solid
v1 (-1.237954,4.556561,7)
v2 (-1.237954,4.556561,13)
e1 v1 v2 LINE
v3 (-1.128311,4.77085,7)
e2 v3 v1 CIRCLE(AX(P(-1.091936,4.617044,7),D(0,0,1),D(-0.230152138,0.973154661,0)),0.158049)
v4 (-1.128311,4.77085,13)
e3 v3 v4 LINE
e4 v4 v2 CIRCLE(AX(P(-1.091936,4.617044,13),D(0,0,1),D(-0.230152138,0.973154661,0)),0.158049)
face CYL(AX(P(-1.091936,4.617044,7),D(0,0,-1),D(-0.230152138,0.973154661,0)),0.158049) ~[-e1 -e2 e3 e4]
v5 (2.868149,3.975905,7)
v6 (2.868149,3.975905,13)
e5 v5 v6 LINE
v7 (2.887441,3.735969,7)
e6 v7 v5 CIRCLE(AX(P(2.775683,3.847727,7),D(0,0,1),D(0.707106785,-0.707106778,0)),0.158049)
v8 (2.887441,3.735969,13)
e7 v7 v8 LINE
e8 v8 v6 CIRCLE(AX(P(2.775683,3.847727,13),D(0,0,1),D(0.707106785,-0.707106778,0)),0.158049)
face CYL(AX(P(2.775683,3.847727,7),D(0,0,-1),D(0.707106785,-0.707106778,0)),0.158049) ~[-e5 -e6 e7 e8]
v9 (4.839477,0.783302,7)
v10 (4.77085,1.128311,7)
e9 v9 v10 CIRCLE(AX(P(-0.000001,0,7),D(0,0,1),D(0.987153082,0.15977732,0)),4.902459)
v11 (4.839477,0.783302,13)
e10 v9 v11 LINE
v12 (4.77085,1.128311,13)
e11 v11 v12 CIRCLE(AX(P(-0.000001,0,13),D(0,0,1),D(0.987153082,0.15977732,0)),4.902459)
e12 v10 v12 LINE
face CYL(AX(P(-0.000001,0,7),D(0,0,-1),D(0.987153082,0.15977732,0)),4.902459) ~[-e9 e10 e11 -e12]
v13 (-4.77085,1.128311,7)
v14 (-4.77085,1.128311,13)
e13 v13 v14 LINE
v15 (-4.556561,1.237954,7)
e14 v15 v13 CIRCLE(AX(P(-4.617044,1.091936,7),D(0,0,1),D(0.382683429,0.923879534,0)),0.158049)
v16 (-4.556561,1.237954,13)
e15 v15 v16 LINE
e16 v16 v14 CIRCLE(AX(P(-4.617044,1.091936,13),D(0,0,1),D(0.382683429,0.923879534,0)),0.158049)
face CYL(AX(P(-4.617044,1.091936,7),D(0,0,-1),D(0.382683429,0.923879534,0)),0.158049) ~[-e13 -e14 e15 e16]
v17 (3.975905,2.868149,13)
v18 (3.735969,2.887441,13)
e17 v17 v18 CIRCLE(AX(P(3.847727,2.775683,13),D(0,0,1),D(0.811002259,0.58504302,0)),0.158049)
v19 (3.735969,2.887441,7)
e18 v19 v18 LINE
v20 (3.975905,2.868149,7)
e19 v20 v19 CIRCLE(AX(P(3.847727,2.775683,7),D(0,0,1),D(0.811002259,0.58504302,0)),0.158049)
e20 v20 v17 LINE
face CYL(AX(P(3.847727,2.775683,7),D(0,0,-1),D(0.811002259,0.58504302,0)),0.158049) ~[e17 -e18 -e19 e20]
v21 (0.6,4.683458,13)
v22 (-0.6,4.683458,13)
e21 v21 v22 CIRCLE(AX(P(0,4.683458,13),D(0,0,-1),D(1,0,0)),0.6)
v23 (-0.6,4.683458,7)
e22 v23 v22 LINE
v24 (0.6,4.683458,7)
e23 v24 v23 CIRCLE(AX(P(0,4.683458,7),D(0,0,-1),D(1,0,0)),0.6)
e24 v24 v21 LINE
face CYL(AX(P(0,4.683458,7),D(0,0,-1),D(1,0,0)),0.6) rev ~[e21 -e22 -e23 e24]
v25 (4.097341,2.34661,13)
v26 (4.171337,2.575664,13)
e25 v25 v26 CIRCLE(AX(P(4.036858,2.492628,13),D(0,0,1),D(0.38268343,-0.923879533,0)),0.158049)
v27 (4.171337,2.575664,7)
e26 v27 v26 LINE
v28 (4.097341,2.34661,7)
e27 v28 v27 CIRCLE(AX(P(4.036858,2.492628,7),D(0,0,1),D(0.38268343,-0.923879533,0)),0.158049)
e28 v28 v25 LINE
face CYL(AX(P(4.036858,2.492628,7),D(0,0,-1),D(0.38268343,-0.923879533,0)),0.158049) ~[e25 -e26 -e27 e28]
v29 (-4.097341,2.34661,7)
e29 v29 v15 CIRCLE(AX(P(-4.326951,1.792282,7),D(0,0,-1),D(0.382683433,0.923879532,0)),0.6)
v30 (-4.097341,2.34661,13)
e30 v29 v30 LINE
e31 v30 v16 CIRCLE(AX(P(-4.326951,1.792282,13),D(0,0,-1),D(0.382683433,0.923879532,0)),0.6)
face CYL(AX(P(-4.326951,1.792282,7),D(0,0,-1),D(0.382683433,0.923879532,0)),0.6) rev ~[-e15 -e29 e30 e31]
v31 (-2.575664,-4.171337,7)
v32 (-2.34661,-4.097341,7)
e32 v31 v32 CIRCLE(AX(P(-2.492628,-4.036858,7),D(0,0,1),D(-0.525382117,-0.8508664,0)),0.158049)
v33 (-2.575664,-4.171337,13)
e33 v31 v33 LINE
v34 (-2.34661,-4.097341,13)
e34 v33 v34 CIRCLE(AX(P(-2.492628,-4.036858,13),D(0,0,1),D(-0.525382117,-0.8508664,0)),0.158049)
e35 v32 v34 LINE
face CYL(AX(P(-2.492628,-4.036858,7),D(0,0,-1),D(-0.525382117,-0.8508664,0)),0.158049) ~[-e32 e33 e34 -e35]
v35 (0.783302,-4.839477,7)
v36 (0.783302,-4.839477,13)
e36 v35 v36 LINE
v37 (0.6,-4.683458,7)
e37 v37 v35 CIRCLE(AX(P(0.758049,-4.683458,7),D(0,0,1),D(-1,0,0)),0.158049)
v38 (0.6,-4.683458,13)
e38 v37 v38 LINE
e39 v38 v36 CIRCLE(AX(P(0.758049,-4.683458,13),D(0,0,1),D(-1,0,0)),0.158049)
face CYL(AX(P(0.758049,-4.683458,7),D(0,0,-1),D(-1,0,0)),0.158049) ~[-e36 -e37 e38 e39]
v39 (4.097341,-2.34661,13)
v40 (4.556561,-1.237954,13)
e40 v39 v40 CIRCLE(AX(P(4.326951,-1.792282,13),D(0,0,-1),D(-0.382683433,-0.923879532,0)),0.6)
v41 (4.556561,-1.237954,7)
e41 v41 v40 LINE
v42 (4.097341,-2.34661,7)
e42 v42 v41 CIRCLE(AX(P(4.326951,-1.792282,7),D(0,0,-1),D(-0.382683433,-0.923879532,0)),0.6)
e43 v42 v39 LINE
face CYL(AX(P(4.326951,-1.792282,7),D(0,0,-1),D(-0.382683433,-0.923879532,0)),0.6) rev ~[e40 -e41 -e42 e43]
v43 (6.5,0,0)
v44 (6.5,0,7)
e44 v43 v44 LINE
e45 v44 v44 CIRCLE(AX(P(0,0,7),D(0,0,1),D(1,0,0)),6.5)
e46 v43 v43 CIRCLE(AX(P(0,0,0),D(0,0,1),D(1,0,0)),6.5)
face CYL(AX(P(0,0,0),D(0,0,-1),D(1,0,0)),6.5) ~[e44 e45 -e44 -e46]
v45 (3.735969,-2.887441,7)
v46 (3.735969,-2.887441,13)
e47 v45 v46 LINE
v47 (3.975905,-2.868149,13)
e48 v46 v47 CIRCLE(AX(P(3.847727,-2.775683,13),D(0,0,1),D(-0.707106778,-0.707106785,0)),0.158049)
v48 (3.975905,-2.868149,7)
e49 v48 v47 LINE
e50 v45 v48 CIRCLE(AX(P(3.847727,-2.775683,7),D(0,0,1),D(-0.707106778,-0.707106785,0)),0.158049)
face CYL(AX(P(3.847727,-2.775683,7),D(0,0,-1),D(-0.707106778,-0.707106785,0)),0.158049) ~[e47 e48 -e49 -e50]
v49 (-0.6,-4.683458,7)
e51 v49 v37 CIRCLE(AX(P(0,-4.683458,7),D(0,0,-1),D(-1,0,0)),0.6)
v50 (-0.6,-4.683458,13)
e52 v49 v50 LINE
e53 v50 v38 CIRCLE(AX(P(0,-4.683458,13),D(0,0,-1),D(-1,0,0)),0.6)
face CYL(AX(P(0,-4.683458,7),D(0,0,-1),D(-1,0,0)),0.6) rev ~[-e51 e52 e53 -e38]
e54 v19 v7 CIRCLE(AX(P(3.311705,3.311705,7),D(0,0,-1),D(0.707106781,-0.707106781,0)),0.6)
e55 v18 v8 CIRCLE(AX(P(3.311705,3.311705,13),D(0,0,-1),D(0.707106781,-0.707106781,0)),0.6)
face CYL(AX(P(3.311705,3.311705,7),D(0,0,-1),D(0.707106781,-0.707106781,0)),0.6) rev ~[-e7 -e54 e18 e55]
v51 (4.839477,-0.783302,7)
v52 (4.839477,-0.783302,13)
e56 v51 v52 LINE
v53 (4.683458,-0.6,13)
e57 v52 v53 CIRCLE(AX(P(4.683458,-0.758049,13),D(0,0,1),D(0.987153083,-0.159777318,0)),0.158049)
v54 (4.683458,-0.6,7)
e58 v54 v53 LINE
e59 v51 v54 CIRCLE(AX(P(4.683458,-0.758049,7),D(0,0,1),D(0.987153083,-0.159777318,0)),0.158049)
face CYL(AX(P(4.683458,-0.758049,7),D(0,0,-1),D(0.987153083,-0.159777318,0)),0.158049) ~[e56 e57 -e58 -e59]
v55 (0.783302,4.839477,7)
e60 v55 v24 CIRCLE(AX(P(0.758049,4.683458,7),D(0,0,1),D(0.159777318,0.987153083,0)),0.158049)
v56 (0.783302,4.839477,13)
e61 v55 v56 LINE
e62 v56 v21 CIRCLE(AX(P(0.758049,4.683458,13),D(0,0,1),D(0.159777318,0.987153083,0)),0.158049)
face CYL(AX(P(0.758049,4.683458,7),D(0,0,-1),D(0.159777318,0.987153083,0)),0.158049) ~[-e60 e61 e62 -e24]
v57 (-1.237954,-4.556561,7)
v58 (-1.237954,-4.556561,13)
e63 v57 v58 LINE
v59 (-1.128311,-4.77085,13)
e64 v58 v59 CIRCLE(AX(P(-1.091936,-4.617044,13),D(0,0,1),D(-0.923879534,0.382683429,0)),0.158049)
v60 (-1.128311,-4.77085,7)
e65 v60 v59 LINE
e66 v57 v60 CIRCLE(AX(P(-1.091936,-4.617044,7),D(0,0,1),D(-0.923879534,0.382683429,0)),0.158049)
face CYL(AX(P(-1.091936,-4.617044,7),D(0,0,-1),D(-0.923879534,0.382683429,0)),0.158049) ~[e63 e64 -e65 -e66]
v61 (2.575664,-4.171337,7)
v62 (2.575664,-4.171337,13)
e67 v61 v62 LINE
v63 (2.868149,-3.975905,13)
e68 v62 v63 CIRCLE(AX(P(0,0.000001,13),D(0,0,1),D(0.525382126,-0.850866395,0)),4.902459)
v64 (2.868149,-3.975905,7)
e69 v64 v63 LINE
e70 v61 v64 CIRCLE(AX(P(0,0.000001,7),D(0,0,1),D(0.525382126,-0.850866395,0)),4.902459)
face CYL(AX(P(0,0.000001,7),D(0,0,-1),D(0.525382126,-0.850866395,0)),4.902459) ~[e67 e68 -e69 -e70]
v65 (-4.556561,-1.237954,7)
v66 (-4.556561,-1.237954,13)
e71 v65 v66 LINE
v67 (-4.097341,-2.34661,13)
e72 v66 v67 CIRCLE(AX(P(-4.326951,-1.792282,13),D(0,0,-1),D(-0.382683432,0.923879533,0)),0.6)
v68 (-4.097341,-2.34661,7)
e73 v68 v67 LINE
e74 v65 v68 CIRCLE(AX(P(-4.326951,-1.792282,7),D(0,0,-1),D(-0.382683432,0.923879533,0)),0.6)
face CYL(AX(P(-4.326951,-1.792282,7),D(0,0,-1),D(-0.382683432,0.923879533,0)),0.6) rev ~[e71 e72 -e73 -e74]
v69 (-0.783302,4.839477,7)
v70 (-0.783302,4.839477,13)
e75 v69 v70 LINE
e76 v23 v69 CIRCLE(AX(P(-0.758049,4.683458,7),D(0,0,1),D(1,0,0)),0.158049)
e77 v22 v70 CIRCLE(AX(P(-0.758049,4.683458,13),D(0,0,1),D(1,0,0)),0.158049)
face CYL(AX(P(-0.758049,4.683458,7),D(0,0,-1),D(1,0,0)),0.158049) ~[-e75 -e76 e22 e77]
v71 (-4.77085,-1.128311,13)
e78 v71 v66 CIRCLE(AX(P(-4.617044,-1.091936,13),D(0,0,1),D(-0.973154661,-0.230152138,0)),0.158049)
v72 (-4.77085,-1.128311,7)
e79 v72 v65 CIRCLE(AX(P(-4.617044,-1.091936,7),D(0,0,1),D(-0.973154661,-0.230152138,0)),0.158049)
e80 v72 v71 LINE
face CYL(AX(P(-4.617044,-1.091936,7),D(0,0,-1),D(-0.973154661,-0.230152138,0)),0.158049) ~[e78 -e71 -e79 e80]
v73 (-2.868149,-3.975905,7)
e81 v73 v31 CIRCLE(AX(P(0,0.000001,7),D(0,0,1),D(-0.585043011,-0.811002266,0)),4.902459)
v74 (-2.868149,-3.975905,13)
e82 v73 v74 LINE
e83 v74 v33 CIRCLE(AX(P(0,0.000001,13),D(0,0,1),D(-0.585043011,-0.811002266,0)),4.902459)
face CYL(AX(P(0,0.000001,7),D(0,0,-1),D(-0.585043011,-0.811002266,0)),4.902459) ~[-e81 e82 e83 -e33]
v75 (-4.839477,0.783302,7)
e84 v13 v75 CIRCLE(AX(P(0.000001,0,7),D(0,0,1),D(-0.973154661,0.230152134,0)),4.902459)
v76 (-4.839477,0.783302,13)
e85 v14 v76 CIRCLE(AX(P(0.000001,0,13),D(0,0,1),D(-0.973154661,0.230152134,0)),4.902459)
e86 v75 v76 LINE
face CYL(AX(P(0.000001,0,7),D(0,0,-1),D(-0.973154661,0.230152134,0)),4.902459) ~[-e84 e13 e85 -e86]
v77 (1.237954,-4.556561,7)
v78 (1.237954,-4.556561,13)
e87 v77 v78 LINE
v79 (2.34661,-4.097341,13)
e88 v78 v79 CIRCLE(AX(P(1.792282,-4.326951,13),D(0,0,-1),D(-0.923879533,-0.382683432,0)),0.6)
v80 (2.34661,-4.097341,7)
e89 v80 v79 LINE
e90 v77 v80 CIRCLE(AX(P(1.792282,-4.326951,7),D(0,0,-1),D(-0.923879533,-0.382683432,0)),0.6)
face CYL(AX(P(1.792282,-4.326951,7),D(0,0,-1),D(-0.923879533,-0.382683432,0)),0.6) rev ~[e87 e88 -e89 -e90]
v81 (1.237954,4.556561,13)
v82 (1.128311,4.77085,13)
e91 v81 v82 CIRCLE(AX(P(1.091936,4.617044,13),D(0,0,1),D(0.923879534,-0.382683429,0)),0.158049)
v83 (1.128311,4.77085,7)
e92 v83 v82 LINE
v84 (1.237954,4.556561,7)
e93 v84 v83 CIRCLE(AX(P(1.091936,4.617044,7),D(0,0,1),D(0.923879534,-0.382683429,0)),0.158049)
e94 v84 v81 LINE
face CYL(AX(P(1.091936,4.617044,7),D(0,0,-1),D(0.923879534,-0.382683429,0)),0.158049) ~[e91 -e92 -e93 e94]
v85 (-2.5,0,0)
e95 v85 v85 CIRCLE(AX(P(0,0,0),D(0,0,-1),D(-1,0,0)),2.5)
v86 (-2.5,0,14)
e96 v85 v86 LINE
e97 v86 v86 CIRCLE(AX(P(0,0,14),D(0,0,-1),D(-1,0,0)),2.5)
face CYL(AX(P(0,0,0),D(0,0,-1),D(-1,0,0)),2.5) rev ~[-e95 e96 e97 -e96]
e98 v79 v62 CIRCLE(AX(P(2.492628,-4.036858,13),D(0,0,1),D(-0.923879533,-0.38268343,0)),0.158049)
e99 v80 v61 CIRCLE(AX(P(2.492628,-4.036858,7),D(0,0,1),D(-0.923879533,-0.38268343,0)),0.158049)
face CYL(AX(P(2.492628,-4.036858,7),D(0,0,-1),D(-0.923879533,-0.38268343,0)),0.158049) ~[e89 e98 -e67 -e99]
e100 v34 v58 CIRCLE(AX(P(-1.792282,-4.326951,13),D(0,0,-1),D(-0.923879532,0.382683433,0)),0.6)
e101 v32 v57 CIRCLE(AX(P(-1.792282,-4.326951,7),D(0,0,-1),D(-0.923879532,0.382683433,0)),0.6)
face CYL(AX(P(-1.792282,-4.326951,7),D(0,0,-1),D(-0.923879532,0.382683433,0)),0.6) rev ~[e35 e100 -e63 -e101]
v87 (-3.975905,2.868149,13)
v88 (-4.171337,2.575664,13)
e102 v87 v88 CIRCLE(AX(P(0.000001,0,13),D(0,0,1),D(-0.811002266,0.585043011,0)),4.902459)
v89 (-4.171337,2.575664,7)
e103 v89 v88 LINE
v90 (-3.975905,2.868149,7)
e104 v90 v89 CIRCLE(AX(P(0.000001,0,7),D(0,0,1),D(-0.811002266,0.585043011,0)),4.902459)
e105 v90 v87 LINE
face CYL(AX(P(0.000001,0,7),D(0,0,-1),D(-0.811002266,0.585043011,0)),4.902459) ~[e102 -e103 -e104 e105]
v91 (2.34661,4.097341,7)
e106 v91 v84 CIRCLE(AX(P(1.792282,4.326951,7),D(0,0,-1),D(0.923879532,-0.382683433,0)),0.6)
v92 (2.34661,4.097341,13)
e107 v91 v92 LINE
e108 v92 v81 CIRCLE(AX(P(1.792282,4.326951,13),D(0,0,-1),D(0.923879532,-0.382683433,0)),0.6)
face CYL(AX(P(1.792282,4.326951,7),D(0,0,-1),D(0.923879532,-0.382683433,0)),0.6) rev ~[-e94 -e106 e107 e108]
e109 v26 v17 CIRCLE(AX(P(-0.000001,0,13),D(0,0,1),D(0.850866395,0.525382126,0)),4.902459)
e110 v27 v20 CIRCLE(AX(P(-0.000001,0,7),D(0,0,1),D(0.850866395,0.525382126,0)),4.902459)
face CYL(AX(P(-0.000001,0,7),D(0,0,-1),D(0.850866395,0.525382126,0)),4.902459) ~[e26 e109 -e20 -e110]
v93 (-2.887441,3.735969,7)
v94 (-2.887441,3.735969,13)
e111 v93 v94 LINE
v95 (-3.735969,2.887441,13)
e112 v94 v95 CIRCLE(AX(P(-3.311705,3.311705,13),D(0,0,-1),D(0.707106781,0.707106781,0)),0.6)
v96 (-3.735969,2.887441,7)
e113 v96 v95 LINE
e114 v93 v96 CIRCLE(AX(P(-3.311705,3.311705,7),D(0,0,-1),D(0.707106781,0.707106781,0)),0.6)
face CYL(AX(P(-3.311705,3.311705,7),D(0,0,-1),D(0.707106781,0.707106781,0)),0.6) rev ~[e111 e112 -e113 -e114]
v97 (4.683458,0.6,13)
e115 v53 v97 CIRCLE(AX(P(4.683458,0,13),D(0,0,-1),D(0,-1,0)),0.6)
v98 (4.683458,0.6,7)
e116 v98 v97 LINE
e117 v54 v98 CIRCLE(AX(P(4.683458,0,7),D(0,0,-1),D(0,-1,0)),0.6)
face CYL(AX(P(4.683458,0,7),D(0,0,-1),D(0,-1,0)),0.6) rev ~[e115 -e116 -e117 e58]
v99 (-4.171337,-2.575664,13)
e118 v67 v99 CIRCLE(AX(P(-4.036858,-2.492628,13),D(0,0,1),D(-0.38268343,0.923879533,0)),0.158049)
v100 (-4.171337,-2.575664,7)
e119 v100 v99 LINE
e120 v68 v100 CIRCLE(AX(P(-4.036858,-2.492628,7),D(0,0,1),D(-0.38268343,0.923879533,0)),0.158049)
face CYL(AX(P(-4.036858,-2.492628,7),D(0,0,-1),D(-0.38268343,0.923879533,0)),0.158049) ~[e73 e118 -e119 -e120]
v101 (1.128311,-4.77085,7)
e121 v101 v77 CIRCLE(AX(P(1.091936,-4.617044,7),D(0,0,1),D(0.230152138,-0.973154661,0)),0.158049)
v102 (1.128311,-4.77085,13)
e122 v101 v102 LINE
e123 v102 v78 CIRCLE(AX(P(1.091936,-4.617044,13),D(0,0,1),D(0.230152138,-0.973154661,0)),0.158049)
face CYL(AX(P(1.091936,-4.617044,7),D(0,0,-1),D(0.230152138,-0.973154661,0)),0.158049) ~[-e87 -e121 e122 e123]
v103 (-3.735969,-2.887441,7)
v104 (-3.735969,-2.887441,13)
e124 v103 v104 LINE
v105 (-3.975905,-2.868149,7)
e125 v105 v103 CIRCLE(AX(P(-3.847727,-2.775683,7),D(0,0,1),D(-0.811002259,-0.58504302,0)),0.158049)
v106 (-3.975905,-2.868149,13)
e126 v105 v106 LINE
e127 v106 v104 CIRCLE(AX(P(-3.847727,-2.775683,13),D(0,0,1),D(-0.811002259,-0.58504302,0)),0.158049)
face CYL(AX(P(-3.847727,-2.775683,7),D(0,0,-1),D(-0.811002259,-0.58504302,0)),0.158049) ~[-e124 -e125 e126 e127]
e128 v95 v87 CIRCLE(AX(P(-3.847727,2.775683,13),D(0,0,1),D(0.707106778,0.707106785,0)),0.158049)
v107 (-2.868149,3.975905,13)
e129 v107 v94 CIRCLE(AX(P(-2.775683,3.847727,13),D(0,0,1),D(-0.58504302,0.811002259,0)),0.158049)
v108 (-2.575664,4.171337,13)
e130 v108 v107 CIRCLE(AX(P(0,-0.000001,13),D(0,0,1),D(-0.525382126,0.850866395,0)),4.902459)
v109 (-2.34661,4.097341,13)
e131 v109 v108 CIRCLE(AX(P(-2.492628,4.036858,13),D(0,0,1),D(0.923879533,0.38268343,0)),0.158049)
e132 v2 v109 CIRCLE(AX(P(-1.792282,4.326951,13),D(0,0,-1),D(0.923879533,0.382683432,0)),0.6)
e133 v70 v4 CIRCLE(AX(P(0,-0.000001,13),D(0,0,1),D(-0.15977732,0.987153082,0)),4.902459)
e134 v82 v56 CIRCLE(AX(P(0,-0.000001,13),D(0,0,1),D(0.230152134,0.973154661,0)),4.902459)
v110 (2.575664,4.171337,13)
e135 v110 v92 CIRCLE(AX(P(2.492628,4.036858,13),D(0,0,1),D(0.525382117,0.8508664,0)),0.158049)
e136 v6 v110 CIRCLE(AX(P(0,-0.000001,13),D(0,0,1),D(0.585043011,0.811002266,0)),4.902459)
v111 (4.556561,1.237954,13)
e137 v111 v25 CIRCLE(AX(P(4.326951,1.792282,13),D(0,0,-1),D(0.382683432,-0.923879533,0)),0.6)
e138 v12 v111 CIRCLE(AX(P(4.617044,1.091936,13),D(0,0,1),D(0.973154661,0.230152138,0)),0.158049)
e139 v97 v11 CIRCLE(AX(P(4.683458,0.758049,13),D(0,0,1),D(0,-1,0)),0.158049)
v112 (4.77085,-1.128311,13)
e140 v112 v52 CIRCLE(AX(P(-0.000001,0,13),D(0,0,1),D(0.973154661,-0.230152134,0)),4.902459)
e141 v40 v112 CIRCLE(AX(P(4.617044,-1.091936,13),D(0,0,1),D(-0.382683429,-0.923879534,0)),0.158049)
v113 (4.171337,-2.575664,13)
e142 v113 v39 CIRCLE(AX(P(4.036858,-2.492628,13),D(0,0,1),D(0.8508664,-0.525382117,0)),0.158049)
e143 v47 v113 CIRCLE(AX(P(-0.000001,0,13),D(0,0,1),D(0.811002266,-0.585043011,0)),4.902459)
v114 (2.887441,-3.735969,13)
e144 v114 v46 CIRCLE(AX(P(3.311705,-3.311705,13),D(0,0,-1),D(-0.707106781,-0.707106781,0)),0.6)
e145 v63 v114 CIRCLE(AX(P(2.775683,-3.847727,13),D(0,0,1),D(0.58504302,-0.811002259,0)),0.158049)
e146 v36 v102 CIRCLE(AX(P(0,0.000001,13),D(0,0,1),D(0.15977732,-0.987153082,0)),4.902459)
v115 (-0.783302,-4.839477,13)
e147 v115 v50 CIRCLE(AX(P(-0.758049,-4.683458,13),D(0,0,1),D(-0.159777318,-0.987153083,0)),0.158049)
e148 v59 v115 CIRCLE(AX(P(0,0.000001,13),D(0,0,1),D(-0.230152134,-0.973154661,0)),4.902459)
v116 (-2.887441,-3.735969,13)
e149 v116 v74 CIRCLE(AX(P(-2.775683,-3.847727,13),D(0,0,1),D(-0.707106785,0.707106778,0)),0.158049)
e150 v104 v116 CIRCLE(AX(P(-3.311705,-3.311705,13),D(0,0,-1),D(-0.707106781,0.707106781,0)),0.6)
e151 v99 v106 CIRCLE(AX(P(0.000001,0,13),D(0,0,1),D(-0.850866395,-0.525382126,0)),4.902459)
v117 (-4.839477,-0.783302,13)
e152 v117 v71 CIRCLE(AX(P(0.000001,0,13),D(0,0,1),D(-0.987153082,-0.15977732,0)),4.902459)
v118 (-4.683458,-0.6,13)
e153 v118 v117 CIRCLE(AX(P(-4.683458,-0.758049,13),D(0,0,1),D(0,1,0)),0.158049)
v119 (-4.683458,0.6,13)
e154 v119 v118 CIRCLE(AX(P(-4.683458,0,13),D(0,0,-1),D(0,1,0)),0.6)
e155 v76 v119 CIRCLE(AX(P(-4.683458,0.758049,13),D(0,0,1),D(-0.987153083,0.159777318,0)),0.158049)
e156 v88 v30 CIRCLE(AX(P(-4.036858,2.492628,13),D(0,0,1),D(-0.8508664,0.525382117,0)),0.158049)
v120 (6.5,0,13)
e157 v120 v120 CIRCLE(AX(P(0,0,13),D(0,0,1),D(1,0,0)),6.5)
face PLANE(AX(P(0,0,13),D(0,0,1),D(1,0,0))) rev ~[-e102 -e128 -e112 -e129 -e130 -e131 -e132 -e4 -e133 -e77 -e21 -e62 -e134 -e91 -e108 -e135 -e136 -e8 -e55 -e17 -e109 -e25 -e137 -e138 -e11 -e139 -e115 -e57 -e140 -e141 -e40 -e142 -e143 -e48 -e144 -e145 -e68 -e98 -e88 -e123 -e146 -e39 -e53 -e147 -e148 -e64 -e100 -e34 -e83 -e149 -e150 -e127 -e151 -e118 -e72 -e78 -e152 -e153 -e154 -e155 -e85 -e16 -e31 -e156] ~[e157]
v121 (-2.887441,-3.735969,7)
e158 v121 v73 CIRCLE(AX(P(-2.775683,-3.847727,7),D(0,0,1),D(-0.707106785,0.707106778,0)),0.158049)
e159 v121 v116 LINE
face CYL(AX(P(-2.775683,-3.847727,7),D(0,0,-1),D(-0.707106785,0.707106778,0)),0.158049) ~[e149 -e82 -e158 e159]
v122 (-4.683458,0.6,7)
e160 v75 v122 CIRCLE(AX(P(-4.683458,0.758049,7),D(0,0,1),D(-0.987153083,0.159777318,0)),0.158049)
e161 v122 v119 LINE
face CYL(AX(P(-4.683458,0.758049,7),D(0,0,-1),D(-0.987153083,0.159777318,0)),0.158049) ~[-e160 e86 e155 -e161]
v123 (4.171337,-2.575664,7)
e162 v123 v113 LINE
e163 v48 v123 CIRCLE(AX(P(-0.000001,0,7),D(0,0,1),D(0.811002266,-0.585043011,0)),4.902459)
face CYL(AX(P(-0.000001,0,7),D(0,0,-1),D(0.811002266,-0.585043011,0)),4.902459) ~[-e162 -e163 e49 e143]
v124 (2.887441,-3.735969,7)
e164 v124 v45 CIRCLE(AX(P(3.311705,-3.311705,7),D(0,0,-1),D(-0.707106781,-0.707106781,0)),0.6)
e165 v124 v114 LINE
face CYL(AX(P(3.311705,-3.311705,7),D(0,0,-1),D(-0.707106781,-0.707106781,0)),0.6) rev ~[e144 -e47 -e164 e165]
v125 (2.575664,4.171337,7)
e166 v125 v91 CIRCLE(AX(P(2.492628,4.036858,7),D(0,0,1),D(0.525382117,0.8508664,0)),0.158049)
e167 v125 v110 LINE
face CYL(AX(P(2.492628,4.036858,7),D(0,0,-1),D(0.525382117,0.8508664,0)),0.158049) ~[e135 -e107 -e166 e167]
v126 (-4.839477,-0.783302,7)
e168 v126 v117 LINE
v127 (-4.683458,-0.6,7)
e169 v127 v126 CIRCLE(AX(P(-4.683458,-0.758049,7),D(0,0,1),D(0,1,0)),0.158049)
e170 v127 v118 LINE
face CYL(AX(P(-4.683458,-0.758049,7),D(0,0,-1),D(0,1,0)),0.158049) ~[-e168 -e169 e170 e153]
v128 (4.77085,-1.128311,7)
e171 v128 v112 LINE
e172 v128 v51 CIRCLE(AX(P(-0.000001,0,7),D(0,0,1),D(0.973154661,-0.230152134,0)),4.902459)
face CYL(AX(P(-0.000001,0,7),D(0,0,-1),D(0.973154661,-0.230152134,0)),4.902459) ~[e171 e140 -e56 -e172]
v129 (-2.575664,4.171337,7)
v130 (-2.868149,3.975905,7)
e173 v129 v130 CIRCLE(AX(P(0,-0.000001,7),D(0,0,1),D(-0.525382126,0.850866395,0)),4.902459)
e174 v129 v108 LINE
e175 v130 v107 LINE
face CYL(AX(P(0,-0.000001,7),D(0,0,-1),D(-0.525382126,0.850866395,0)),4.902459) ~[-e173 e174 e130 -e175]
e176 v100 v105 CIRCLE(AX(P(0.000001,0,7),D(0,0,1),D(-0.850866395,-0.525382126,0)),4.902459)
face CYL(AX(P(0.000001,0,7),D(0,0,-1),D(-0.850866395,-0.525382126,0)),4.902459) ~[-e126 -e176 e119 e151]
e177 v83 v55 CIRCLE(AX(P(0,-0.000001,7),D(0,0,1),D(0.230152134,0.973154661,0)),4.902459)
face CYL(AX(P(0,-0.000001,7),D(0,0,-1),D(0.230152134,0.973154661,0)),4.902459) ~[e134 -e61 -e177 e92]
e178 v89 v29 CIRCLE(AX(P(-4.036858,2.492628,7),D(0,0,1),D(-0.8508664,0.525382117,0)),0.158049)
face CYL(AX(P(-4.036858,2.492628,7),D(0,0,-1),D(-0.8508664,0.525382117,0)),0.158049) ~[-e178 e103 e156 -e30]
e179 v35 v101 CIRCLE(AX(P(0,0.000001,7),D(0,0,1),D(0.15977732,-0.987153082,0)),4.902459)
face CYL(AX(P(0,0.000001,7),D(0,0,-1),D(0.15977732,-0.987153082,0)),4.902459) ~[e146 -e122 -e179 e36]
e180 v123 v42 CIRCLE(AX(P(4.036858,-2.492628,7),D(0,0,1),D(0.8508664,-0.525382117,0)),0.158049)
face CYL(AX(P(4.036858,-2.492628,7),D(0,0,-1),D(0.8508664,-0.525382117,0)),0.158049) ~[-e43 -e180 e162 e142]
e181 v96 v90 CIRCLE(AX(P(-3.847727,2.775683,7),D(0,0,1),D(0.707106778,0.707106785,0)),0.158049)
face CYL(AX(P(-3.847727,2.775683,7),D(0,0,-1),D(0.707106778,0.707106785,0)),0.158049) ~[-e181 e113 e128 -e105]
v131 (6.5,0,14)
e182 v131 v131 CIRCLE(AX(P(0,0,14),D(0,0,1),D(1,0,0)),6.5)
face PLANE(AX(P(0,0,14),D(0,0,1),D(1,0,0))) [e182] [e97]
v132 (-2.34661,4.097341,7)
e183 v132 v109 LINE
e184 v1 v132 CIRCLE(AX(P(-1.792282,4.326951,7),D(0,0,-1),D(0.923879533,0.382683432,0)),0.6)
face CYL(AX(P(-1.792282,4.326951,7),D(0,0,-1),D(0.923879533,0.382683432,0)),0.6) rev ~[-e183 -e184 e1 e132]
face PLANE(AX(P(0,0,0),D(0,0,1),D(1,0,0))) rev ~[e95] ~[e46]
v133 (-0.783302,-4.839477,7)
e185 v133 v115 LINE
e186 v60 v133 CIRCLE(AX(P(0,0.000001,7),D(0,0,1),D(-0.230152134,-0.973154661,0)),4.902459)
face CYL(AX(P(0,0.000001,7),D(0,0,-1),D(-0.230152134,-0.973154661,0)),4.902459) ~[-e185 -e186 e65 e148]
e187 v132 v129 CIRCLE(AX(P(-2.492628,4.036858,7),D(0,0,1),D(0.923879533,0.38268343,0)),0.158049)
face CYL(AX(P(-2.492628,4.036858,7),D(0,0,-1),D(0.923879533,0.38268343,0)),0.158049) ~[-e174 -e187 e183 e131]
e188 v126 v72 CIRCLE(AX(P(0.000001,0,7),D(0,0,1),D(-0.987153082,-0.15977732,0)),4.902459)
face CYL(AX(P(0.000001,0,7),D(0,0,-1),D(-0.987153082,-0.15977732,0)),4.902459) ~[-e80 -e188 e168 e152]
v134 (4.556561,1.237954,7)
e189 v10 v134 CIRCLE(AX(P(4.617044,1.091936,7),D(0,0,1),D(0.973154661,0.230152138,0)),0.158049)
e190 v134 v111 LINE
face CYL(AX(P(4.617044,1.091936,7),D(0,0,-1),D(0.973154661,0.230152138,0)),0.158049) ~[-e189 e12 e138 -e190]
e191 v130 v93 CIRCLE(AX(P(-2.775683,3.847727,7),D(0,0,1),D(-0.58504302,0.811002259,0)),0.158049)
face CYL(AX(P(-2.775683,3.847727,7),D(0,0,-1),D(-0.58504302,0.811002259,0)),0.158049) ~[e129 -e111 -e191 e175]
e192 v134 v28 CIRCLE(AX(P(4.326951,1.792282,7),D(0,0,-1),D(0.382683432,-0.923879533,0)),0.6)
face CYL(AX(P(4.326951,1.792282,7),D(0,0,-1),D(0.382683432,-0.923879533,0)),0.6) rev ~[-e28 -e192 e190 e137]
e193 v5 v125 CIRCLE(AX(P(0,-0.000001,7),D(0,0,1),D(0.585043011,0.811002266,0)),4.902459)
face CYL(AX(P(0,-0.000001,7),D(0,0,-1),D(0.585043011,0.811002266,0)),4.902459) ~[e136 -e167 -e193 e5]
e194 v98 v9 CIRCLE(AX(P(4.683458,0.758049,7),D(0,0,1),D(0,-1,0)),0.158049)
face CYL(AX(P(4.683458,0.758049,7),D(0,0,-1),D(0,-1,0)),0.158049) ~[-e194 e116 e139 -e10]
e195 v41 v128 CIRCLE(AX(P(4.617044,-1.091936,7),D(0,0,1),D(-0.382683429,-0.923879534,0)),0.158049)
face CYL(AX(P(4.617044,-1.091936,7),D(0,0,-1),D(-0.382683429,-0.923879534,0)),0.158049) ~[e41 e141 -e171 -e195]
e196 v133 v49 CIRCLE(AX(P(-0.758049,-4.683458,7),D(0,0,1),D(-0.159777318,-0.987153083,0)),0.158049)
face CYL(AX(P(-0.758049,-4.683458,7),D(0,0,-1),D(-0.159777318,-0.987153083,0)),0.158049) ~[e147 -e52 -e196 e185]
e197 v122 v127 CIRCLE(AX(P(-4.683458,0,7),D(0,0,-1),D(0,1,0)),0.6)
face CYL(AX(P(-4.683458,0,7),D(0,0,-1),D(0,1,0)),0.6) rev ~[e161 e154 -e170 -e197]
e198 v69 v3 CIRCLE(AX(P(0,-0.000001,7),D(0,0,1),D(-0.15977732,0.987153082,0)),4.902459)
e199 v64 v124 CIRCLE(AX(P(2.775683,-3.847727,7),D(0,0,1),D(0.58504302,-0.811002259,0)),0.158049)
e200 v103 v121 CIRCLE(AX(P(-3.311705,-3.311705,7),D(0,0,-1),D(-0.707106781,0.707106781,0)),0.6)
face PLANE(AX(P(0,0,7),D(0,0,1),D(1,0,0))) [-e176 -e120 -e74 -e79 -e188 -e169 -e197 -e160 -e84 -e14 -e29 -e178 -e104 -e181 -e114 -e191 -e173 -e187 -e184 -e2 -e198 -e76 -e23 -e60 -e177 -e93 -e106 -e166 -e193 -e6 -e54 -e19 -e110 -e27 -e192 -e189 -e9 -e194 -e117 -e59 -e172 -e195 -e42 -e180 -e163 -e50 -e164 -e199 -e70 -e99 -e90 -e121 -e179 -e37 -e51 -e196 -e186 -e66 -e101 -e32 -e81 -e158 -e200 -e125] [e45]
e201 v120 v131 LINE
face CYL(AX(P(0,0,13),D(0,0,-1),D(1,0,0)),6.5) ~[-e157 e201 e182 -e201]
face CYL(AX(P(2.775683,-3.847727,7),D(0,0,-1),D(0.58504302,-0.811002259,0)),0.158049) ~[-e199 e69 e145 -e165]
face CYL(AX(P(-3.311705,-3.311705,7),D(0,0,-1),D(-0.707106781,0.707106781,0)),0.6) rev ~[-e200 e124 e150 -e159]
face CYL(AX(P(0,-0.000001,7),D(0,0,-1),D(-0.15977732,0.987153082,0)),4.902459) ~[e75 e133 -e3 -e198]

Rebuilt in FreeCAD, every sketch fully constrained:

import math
import FreeCAD as App
import Part
import Sketcher
from FreeCAD import Vector
Q = App.Units.Quantity

doc = App.newDocument("Part")
body = doc.addObject("PartDesign::Body", "Body")

# Sketch on XY plane
sketch1 = body.newObject("Sketcher::SketchObject", "Sketch")
sketch1.AttachmentSupport = (doc.getObject("XY_Plane"), [""])
sketch1.MapMode = "FlatFace"
sketch1.addGeometry(Part.Circle(Vector(0, 0, 0), Vector(0, 0, 1), 6), False)
sketch1.addConstraint(Sketcher.Constraint("Coincident", 0, 3, -1, 1))
sketch1.addConstraint(Sketcher.Constraint("Diameter", 0, Q("13 mm")))
pad1 = body.newObject("PartDesign::Pad", "Pad")
pad1.Profile = sketch1
pad1.Length = 7

# Sketch on XY plane
sketch2 = body.newObject("Sketcher::SketchObject", "Sketch001")
sketch2.AttachmentSupport = (doc.getObject("XY_Plane"), [""])
sketch2.MapMode = "FlatFace"
sketch2.AttachmentOffset = App.Placement(Vector(0, 0, 7), App.Rotation())
sketch2.addGeometry(Part.ArcOfCircle(Part.Circle(Vector(-0.76, 4.68, 0), Vector(0, 0, 1), 0.16), math.radians(0), math.radians(99)), False)
sketch2.addGeometry(Part.ArcOfCircle(Part.Circle(Vector(0, 0, 0), Vector(0, 0, 1), 4.9), math.radians(99.19), math.radians(103.31)), False)
sketch2.addGeometry(Part.ArcOfCircle(Part.Circle(Vector(-1.09, 4.62, 0), Vector(0, 0, 1), 0.16), math.radians(103), math.radians(202)), False)
sketch2.addGeometry(Part.ArcOfCircle(Part.Circle(Vector(-1.79, 4.33, 0), Vector(0, 0, 1), 0.6), math.radians(-157), math.radians(22)), False)
sketch2.addGeometry(Part.ArcOfCircle(Part.Circle(Vector(-2.49, 4.04, 0), Vector(0, 0, 1), 0.16), math.radians(22), math.radians(122)), False)
sketch2.addGeometry(Part.ArcOfCircle(Part.Circle(Vector(0, 0, 0), Vector(0, 0, 1), 4.9), math.radians(121.69), math.radians(125.81)), False)
sketch2.addGeometry(Part.ArcOfCircle(Part.Circle(Vector(-2.78, 3.85, 0), Vector(0, 0, 1), 0.16), math.radians(126), math.radians(225)), False)
sketch2.addGeometry(Part.ArcOfCircle(Part.Circle(Vector(-3.31, 3.31, 0), Vector(0, 0, 1), 0.6), math.radians(-135), math.radians(45)), False)
sketch2.addGeometry(Part.ArcOfCircle(Part.Circle(Vector(-3.85, 2.78, 0), Vector(0, 0, 1), 0.16), math.radians(45), math.radians(144)), False)
sketch2.addGeometry(Part.ArcOfCircle(Part.Circle(Vector(0, 0, 0), Vector(0, 0, 1), 4.9), math.radians(144.19), math.radians(148.31)), False)
sketch2.addGeometry(Part.ArcOfCircle(Part.Circle(Vector(-4.04, 2.49, 0), Vector(0, 0, 1), 0.16), math.radians(148), math.radians(247)), False)
sketch2.addGeometry(Part.ArcOfCircle(Part.Circle(Vector(-4.33, 1.79, 0), Vector(0, 0, 1), 0.6), math.radians(-113), math.radians(67)), False)
sketch2.addGeometry(Part.ArcOfCircle(Part.Circle(Vector(-4.62, 1.09, 0), Vector(0, 0, 1), 0.16), math.radians(68), math.radians(167)), False)
sketch2.addGeometry(Part.ArcOfCircle(Part.Circle(Vector(0, 0, 0), Vector(0, 0, 1), 4.9), math.radians(166.69), math.radians(170.81)), False)
sketch2.addGeometry(Part.ArcOfCircle(Part.Circle(Vector(-4.68, 0.76, 0), Vector(0, 0, 1), 0.16), math.radians(171), math.radians(270)), False)
sketch2.addGeometry(Part.ArcOfCircle(Part.Circle(Vector(-4.68, 0, 0), Vector(0, 0, 1), 0.6), math.radians(-90), math.radians(90)), False)
sketch2.addGeometry(Part.ArcOfCircle(Part.Circle(Vector(-4.68, -0.76, 0), Vector(0, 0, 1), 0.16), math.radians(90), math.radians(189)), False)
sketch2.addGeometry(Part.ArcOfCircle(Part.Circle(Vector(0, 0, 0), Vector(0, 0, 1), 4.9), math.radians(-170.81), math.radians(-166.69)), False)
sketch2.addGeometry(Part.ArcOfCircle(Part.Circle(Vector(-4.62, -1.09, 0), Vector(0, 0, 1), 0.16), math.radians(-167), math.radians(-68)), False)
sketch2.addGeometry(Part.ArcOfCircle(Part.Circle(Vector(-4.33, -1.79, 0), Vector(0, 0, 1), 0.6), math.radians(-67), math.radians(112)), False)
sketch2.addGeometry(Part.ArcOfCircle(Part.Circle(Vector(-4.04, -2.49, 0), Vector(0, 0, 1), 0.16), math.radians(112), math.radians(212)), False)
sketch2.addGeometry(Part.ArcOfCircle(Part.Circle(Vector(0, 0, 0), Vector(0, 0, 1), 4.9), math.radians(-148.31), math.radians(-144.19)), False)
sketch2.addGeometry(Part.ArcOfCircle(Part.Circle(Vector(-3.85, -2.78, 0), Vector(0, 0, 1), 0.16), math.radians(-144), math.radians(-45)), False)
sketch2.addGeometry(Part.ArcOfCircle(Part.Circle(Vector(-3.31, -3.31, 0), Vector(0, 0, 1), 0.6), math.radians(-45), math.radians(135)), False)
sketch2.addGeometry(Part.ArcOfCircle(Part.Circle(Vector(-2.78, -3.85, 0), Vector(0, 0, 1), 0.16), math.radians(135), math.radians(234)), False)
sketch2.addGeometry(Part.ArcOfCircle(Part.Circle(Vector(0, 0, 0), Vector(0, 0, 1), 4.9), math.radians(-125.81), math.radians(-121.69)), False)
sketch2.addGeometry(Part.ArcOfCircle(Part.Circle(Vector(-2.49, -4.04, 0), Vector(0, 0, 1), 0.16), math.radians(-122), math.radians(-23)), False)
sketch2.addGeometry(Part.ArcOfCircle(Part.Circle(Vector(-1.79, -4.33, 0), Vector(0, 0, 1), 0.6), math.radians(-23), math.radians(157)), False)
sketch2.addGeometry(Part.ArcOfCircle(Part.Circle(Vector(-1.09, -4.62, 0), Vector(0, 0, 1), 0.16), math.radians(158), math.radians(257)), False)
sketch2.addGeometry(Part.ArcOfCircle(Part.Circle(Vector(0, 0, 0), Vector(0, 0, 1), 4.9), math.radians(-103.31), math.radians(-99.19)), False)
sketch2.addGeometry(Part.ArcOfCircle(Part.Circle(Vector(-0.76, -4.68, 0), Vector(0, 0, 1), 0.16), math.radians(-99), math.radians(0)), False)
sketch2.addGeometry(Part.ArcOfCircle(Part.Circle(Vector(0, -4.68, 0), Vector(0, 0, 1), 0.6), math.radians(0), math.radians(180)), False)
sketch2.addGeometry(Part.ArcOfCircle(Part.Circle(Vector(0.76, -4.68, 0), Vector(0, 0, 1), 0.16), math.radians(180), math.radians(279)), False)
sketch2.addGeometry(Part.ArcOfCircle(Part.Circle(Vector(0, 0, 0), Vector(0, 0, 1), 4.9), math.radians(-80.81), math.radians(-76.69)), False)
sketch2.addGeometry(Part.ArcOfCircle(Part.Circle(Vector(1.09, -4.62, 0), Vector(0, 0, 1), 0.16), math.radians(-77), math.radians(22)), False)
sketch2.addGeometry(Part.ArcOfCircle(Part.Circle(Vector(1.79, -4.33, 0), Vector(0, 0, 1), 0.6), math.radians(23), math.radians(202)), False)
sketch2.addGeometry(Part.ArcOfCircle(Part.Circle(Vector(2.49, -4.04, 0), Vector(0, 0, 1), 0.16), math.radians(-158), math.radians(-58)), False)
sketch2.addGeometry(Part.ArcOfCircle(Part.Circle(Vector(0, 0, 0), Vector(0, 0, 1), 4.9), math.radians(-58.31), math.radians(-54.19)), False)
sketch2.addGeometry(Part.ArcOfCircle(Part.Circle(Vector(2.78, -3.85, 0), Vector(0, 0, 1), 0.16), math.radians(-54), math.radians(45)), False)
sketch2.addGeometry(Part.ArcOfCircle(Part.Circle(Vector(3.31, -3.31, 0), Vector(0, 0, 1), 0.6), math.radians(45), math.radians(225)), False)
sketch2.addGeometry(Part.ArcOfCircle(Part.Circle(Vector(3.85, -2.78, 0), Vector(0, 0, 1), 0.16), math.radians(-135), math.radians(-36)), False)
sketch2.addGeometry(Part.ArcOfCircle(Part.Circle(Vector(0, 0, 0), Vector(0, 0, 1), 4.9), math.radians(-35.81), math.radians(-31.69)), False)
sketch2.addGeometry(Part.ArcOfCircle(Part.Circle(Vector(4.04, -2.49, 0), Vector(0, 0, 1), 0.16), math.radians(-32), math.radians(67)), False)
sketch2.addGeometry(Part.ArcOfCircle(Part.Circle(Vector(4.33, -1.79, 0), Vector(0, 0, 1), 0.6), math.radians(67), math.radians(247)), False)
sketch2.addGeometry(Part.ArcOfCircle(Part.Circle(Vector(4.62, -1.09, 0), Vector(0, 0, 1), 0.16), math.radians(-112), math.radians(-13)), False)
sketch2.addGeometry(Part.ArcOfCircle(Part.Circle(Vector(0, 0, 0), Vector(0, 0, 1), 4.9), math.radians(-13.31), math.radians(-9.19)), False)
sketch2.addGeometry(Part.ArcOfCircle(Part.Circle(Vector(4.68, -0.76, 0), Vector(0, 0, 1), 0.16), math.radians(-9), math.radians(90)), False)
sketch2.addGeometry(Part.ArcOfCircle(Part.Circle(Vector(4.68, 0, 0), Vector(0, 0, 1), 0.6), math.radians(90), math.radians(270)), False)
sketch2.addGeometry(Part.ArcOfCircle(Part.Circle(Vector(4.68, 0.76, 0), Vector(0, 0, 1), 0.16), math.radians(-90), math.radians(9)), False)
sketch2.addGeometry(Part.ArcOfCircle(Part.Circle(Vector(0, 0, 0), Vector(0, 0, 1), 4.9), math.radians(9.19), math.radians(13.31)), False)
sketch2.addGeometry(Part.ArcOfCircle(Part.Circle(Vector(4.62, 1.09, 0), Vector(0, 0, 1), 0.16), math.radians(13), math.radians(112)), False)
sketch2.addGeometry(Part.ArcOfCircle(Part.Circle(Vector(4.33, 1.79, 0), Vector(0, 0, 1), 0.6), math.radians(113), math.radians(292)), False)
sketch2.addGeometry(Part.ArcOfCircle(Part.Circle(Vector(4.04, 2.49, 0), Vector(0, 0, 1), 0.16), math.radians(-68), math.radians(32)), False)
sketch2.addGeometry(Part.ArcOfCircle(Part.Circle(Vector(0, 0, 0), Vector(0, 0, 1), 4.9), math.radians(31.69), math.radians(35.81)), False)
sketch2.addGeometry(Part.ArcOfCircle(Part.Circle(Vector(3.85, 2.78, 0), Vector(0, 0, 1), 0.16), math.radians(36), math.radians(135)), False)
sketch2.addGeometry(Part.ArcOfCircle(Part.Circle(Vector(3.31, 3.31, 0), Vector(0, 0, 1), 0.6), math.radians(135), math.radians(315)), False)
sketch2.addGeometry(Part.ArcOfCircle(Part.Circle(Vector(2.78, 3.85, 0), Vector(0, 0, 1), 0.16), math.radians(-45), math.radians(54)), False)
sketch2.addGeometry(Part.ArcOfCircle(Part.Circle(Vector(0, 0, 0), Vector(0, 0, 1), 4.9), math.radians(54.19), math.radians(58.31)), False)
sketch2.addGeometry(Part.ArcOfCircle(Part.Circle(Vector(2.49, 4.04, 0), Vector(0, 0, 1), 0.16), math.radians(58), math.radians(157)), False)
sketch2.addGeometry(Part.ArcOfCircle(Part.Circle(Vector(1.79, 4.33, 0), Vector(0, 0, 1), 0.6), math.radians(157), math.radians(337)), False)
sketch2.addGeometry(Part.ArcOfCircle(Part.Circle(Vector(1.09, 4.62, 0), Vector(0, 0, 1), 0.16), math.radians(-22), math.radians(77)), False)
sketch2.addGeometry(Part.ArcOfCircle(Part.Circle(Vector(0, 0, 0), Vector(0, 0, 1), 4.9), math.radians(76.69), math.radians(80.81)), False)
sketch2.addGeometry(Part.ArcOfCircle(Part.Circle(Vector(0.76, 4.68, 0), Vector(0, 0, 1), 0.16), math.radians(81), math.radians(180)), False)
sketch2.addGeometry(Part.ArcOfCircle(Part.Circle(Vector(0, 4.68, 0), Vector(0, 0, 1), 0.6), math.radians(180), math.radians(360)), False)
sketch2.addConstraint(Sketcher.Constraint("Tangent", 0, 2, 1, 1))
sketch2.addConstraint(Sketcher.Constraint("Tangent", 1, 2, 2, 1))
sketch2.addConstraint(Sketcher.Constraint("Tangent", 2, 2, 3, 2))
sketch2.addConstraint(Sketcher.Constraint("Tangent", 3, 1, 4, 1))
sketch2.addConstraint(Sketcher.Constraint("Tangent", 4, 2, 5, 1))
sketch2.addConstraint(Sketcher.Constraint("Tangent", 5, 2, 6, 1))
sketch2.addConstraint(Sketcher.Constraint("Tangent", 6, 2, 7, 2))
sketch2.addConstraint(Sketcher.Constraint("Tangent", 7, 1, 8, 1))
sketch2.addConstraint(Sketcher.Constraint("Tangent", 8, 2, 9, 1))
sketch2.addConstraint(Sketcher.Constraint("Tangent", 9, 2, 10, 1))
sketch2.addConstraint(Sketcher.Constraint("Tangent", 10, 2, 11, 2))
sketch2.addConstraint(Sketcher.Constraint("Tangent", 11, 1, 12, 1))
sketch2.addConstraint(Sketcher.Constraint("Tangent", 12, 2, 13, 1))
sketch2.addConstraint(Sketcher.Constraint("Tangent", 13, 2, 14, 1))
sketch2.addConstraint(Sketcher.Constraint("Tangent", 14, 2, 15, 2))
sketch2.addConstraint(Sketcher.Constraint("Tangent", 15, 1, 16, 1))
sketch2.addConstraint(Sketcher.Constraint("Tangent", 16, 2, 17, 1))
sketch2.addConstraint(Sketcher.Constraint("Tangent", 17, 2, 18, 1))
sketch2.addConstraint(Sketcher.Constraint("Tangent", 18, 2, 19, 2))
sketch2.addConstraint(Sketcher.Constraint("Tangent", 19, 1, 20, 1))
sketch2.addConstraint(Sketcher.Constraint("Tangent", 20, 2, 21, 1))
sketch2.addConstraint(Sketcher.Constraint("Tangent", 21, 2, 22, 1))
sketch2.addConstraint(Sketcher.Constraint("Tangent", 22, 2, 23, 2))
sketch2.addConstraint(Sketcher.Constraint("Tangent", 23, 1, 24, 1))
sketch2.addConstraint(Sketcher.Constraint("Tangent", 24, 2, 25, 1))
sketch2.addConstraint(Sketcher.Constraint("Tangent", 25, 2, 26, 1))
sketch2.addConstraint(Sketcher.Constraint("Tangent", 26, 2, 27, 2))
sketch2.addConstraint(Sketcher.Constraint("Tangent", 27, 1, 28, 1))
sketch2.addConstraint(Sketcher.Constraint("Tangent", 28, 2, 29, 1))
sketch2.addConstraint(Sketcher.Constraint("Tangent", 29, 2, 30, 1))
sketch2.addConstraint(Sketcher.Constraint("Tangent", 30, 2, 31, 2))
sketch2.addConstraint(Sketcher.Constraint("Tangent", 31, 1, 32, 1))
sketch2.addConstraint(Sketcher.Constraint("Tangent", 32, 2, 33, 1))
sketch2.addConstraint(Sketcher.Constraint("Tangent", 33, 2, 34, 1))
sketch2.addConstraint(Sketcher.Constraint("Tangent", 34, 2, 35, 2))
sketch2.addConstraint(Sketcher.Constraint("Tangent", 35, 1, 36, 1))
sketch2.addConstraint(Sketcher.Constraint("Tangent", 36, 2, 37, 1))
sketch2.addConstraint(Sketcher.Constraint("Tangent", 37, 2, 38, 1))
sketch2.addConstraint(Sketcher.Constraint("Tangent", 38, 2, 39, 2))
sketch2.addConstraint(Sketcher.Constraint("Tangent", 39, 1, 40, 1))
sketch2.addConstraint(Sketcher.Constraint("Tangent", 40, 2, 41, 1))
sketch2.addConstraint(Sketcher.Constraint("Tangent", 41, 2, 42, 1))
sketch2.addConstraint(Sketcher.Constraint("Tangent", 42, 2, 43, 2))
sketch2.addConstraint(Sketcher.Constraint("Tangent", 43, 1, 44, 1))
sketch2.addConstraint(Sketcher.Constraint("Tangent", 44, 2, 45, 1))
sketch2.addConstraint(Sketcher.Constraint("Tangent", 45, 2, 46, 1))
sketch2.addConstraint(Sketcher.Constraint("Tangent", 46, 2, 47, 2))
sketch2.addConstraint(Sketcher.Constraint("Tangent", 47, 1, 48, 1))
sketch2.addConstraint(Sketcher.Constraint("Tangent", 48, 2, 49, 1))
sketch2.addConstraint(Sketcher.Constraint("Tangent", 49, 2, 50, 1))
sketch2.addConstraint(Sketcher.Constraint("Tangent", 50, 2, 51, 2))
sketch2.addConstraint(Sketcher.Constraint("Tangent", 51, 1, 52, 1))
sketch2.addConstraint(Sketcher.Constraint("Tangent", 52, 2, 53, 1))
sketch2.addConstraint(Sketcher.Constraint("Tangent", 53, 2, 54, 1))
sketch2.addConstraint(Sketcher.Constraint("Tangent", 54, 2, 55, 2))
sketch2.addConstraint(Sketcher.Constraint("Tangent", 55, 1, 56, 1))
sketch2.addConstraint(Sketcher.Constraint("Tangent", 56, 2, 57, 1))
sketch2.addConstraint(Sketcher.Constraint("Tangent", 57, 2, 58, 1))
sketch2.addConstraint(Sketcher.Constraint("Tangent", 58, 2, 59, 2))
sketch2.addConstraint(Sketcher.Constraint("Tangent", 59, 1, 60, 1))
sketch2.addConstraint(Sketcher.Constraint("Tangent", 60, 2, 61, 1))
sketch2.addConstraint(Sketcher.Constraint("Tangent", 61, 2, 62, 1))
sketch2.addConstraint(Sketcher.Constraint("Tangent", 62, 2, 63, 2))
sketch2.addConstraint(Sketcher.Constraint("Tangent", 63, 1, 0, 1))
sketch2.addConstraint(Sketcher.Constraint("Coincident", 1, 3, -1, 1))
sketch2.addConstraint(Sketcher.Constraint("Coincident", 5, 3, -1, 1))
sketch2.addConstraint(Sketcher.Constraint("Coincident", 9, 3, -1, 1))
sketch2.addConstraint(Sketcher.Constraint("Coincident", 13, 3, -1, 1))
sketch2.addConstraint(Sketcher.Constraint("Coincident", 17, 3, -1, 1))
sketch2.addConstraint(Sketcher.Constraint("Coincident", 21, 3, -1, 1))
sketch2.addConstraint(Sketcher.Constraint("Coincident", 25, 3, -1, 1))
sketch2.addConstraint(Sketcher.Constraint("Coincident", 29, 3, -1, 1))
sketch2.addConstraint(Sketcher.Constraint("Coincident", 33, 3, -1, 1))
sketch2.addConstraint(Sketcher.Constraint("Coincident", 37, 3, -1, 1))
sketch2.addConstraint(Sketcher.Constraint("Coincident", 41, 3, -1, 1))
sketch2.addConstraint(Sketcher.Constraint("Coincident", 45, 3, -1, 1))
sketch2.addConstraint(Sketcher.Constraint("Coincident", 49, 3, -1, 1))
sketch2.addConstraint(Sketcher.Constraint("Coincident", 53, 3, -1, 1))
sketch2.addConstraint(Sketcher.Constraint("Coincident", 57, 3, -1, 1))
sketch2.addConstraint(Sketcher.Constraint("Coincident", 61, 3, -1, 1))
sketch2.addConstraint(Sketcher.Constraint("Equal", 0, 2))
sketch2.addConstraint(Sketcher.Constraint("Equal", 2, 4))
sketch2.addConstraint(Sketcher.Constraint("Equal", 1, 5))
sketch2.addConstraint(Sketcher.Constraint("Equal", 4, 6))
sketch2.addConstraint(Sketcher.Constraint("Equal", 3, 7))
sketch2.addConstraint(Sketcher.Constraint("Equal", 6, 8))
sketch2.addConstraint(Sketcher.Constraint("Equal", 5, 9))
sketch2.addConstraint(Sketcher.Constraint("Equal", 8, 10))
sketch2.addConstraint(Sketcher.Constraint("Equal", 7, 11))
sketch2.addConstraint(Sketcher.Constraint("Equal", 10, 12))
sketch2.addConstraint(Sketcher.Constraint("Equal", 9, 13))
sketch2.addConstraint(Sketcher.Constraint("Equal", 12, 14))
sketch2.addConstraint(Sketcher.Constraint("Equal", 11, 15))
sketch2.addConstraint(Sketcher.Constraint("Equal", 14, 16))
sketch2.addConstraint(Sketcher.Constraint("Equal", 13, 17))
sketch2.addConstraint(Sketcher.Constraint("Equal", 16, 18))
sketch2.addConstraint(Sketcher.Constraint("Equal", 15, 19))
sketch2.addConstraint(Sketcher.Constraint("Equal", 18, 20))
sketch2.addConstraint(Sketcher.Constraint("Equal", 17, 21))
sketch2.addConstraint(Sketcher.Constraint("Equal", 20, 22))
sketch2.addConstraint(Sketcher.Constraint("Equal", 19, 23))
sketch2.addConstraint(Sketcher.Constraint("Equal", 22, 24))
sketch2.addConstraint(Sketcher.Constraint("Equal", 21, 25))
sketch2.addConstraint(Sketcher.Constraint("Equal", 24, 26))
sketch2.addConstraint(Sketcher.Constraint("Equal", 23, 27))
sketch2.addConstraint(Sketcher.Constraint("Equal", 26, 28))
sketch2.addConstraint(Sketcher.Constraint("Equal", 25, 29))
sketch2.addConstraint(Sketcher.Constraint("Equal", 28, 30))
sketch2.addConstraint(Sketcher.Constraint("Equal", 27, 31))
sketch2.addConstraint(Sketcher.Constraint("Equal", 30, 32))
sketch2.addConstraint(Sketcher.Constraint("Equal", 29, 33))
sketch2.addConstraint(Sketcher.Constraint("Equal", 32, 34))
sketch2.addConstraint(Sketcher.Constraint("Equal", 31, 35))
sketch2.addConstraint(Sketcher.Constraint("Equal", 34, 36))
sketch2.addConstraint(Sketcher.Constraint("Equal", 33, 37))
sketch2.addConstraint(Sketcher.Constraint("Equal", 36, 38))
sketch2.addConstraint(Sketcher.Constraint("Equal", 35, 39))
sketch2.addConstraint(Sketcher.Constraint("Equal", 38, 40))
sketch2.addConstraint(Sketcher.Constraint("Equal", 37, 41))
sketch2.addConstraint(Sketcher.Constraint("Equal", 40, 42))
sketch2.addConstraint(Sketcher.Constraint("Equal", 39, 43))
sketch2.addConstraint(Sketcher.Constraint("Equal", 42, 44))
sketch2.addConstraint(Sketcher.Constraint("Equal", 41, 45))
sketch2.addConstraint(Sketcher.Constraint("Equal", 44, 46))
sketch2.addConstraint(Sketcher.Constraint("Equal", 43, 47))
sketch2.addConstraint(Sketcher.Constraint("Equal", 46, 48))
sketch2.addConstraint(Sketcher.Constraint("Equal", 45, 49))
sketch2.addConstraint(Sketcher.Constraint("Equal", 48, 50))
sketch2.addConstraint(Sketcher.Constraint("Equal", 47, 51))
sketch2.addConstraint(Sketcher.Constraint("Equal", 50, 52))
sketch2.addConstraint(Sketcher.Constraint("Equal", 49, 53))
sketch2.addConstraint(Sketcher.Constraint("Equal", 52, 54))
sketch2.addConstraint(Sketcher.Constraint("Equal", 51, 55))
sketch2.addConstraint(Sketcher.Constraint("Equal", 54, 56))
sketch2.addConstraint(Sketcher.Constraint("Equal", 53, 57))
sketch2.addConstraint(Sketcher.Constraint("Equal", 56, 58))
sketch2.addConstraint(Sketcher.Constraint("Equal", 55, 59))
sketch2.addConstraint(Sketcher.Constraint("Equal", 58, 60))
sketch2.addConstraint(Sketcher.Constraint("Equal", 57, 61))
sketch2.addConstraint(Sketcher.Constraint("Equal", 60, 62))
sketch2.addConstraint(Sketcher.Constraint("Equal", 59, 63))
sketch2.addConstraint(Sketcher.Constraint("Symmetric", 3, 3, 35, 3, -1, 1))
sketch2.addConstraint(Sketcher.Constraint("Symmetric", 7, 3, 39, 3, -1, 1))
sketch2.addConstraint(Sketcher.Constraint("Symmetric", 11, 3, 43, 3, -1, 1))
sketch2.addConstraint(Sketcher.Constraint("Symmetric", 15, 3, 47, 3, -1, 1))
sketch2.addConstraint(Sketcher.Constraint("Symmetric", 19, 3, 51, 3, -1, 1))
sketch2.addConstraint(Sketcher.Constraint("Symmetric", 23, 3, 55, 3, -1, 1))
sketch2.addConstraint(Sketcher.Constraint("Symmetric", 27, 3, 59, 3, -1, 1))
sketch2.addConstraint(Sketcher.Constraint("Symmetric", 31, 3, 63, 3, -1, 1))
sketch2.addConstraint(Sketcher.Constraint("Symmetric", 27, 3, 35, 3, -2))
sketch2.addConstraint(Sketcher.Constraint("Symmetric", 23, 3, 39, 3, -2))
sketch2.addConstraint(Sketcher.Constraint("Symmetric", 19, 3, 43, 3, -2))
sketch2.addConstraint(Sketcher.Constraint("PointOnObject", 15, 3, -1))
sketch2.addConstraint(Sketcher.Constraint("PointOnObject", 31, 3, -2))
sketch2.addConstraint(Sketcher.Constraint("Horizontal", 30, 3, 31, 3))
sketch2.addConstraint(Sketcher.Constraint("Vertical", 14, 3, 15, 3))
sketch2.addConstraint(Sketcher.Constraint("Radius", 3, Q("0.6 mm")))
sketch2.addConstraint(Sketcher.Constraint("Radius", 0, Q("0.158049 mm")))
sketch2.addConstraint(Sketcher.Constraint("Radius", 1, Q("4.902459 mm")))
sketch2.addConstraint(Sketcher.Constraint("DistanceX", 3, 3, -1, 1, Q("1.792282 mm")))
sketch2.addConstraint(Sketcher.Constraint("DistanceY", -1, 1, 3, 3, Q("4.326951 mm")))
sketch2.addConstraint(Sketcher.Constraint("DistanceX", 10, 3, -1, 1, Q("4.036858 mm")))
sketch2.addConstraint(Sketcher.Constraint("DistanceX", 11, 3, -1, 1, Q("4.326951 mm")))
sketch2.addConstraint(Sketcher.Constraint("DistanceX", 5, 2, -1, 1, Q("2.868149 mm")))
sketch2.addConstraint(Sketcher.Constraint("DistanceX", 6, 2, -1, 1, Q("2.887441 mm")))
pad2 = body.newObject("PartDesign::Pad", "Pad001")
pad2.Profile = sketch2
pad2.Length = 6

# Sketch on XY plane
sketch3 = body.newObject("Sketcher::SketchObject", "Sketch002")
sketch3.AttachmentSupport = (doc.getObject("XY_Plane"), [""])
sketch3.MapMode = "FlatFace"
sketch3.AttachmentOffset = App.Placement(Vector(0, 0, 13), App.Rotation())
sketch3.addGeometry(Part.Circle(Vector(0, 0, 0), Vector(0, 0, 1), 6), False)
sketch3.addConstraint(Sketcher.Constraint("Coincident", 0, 3, -1, 1))
sketch3.addConstraint(Sketcher.Constraint("Diameter", 0, Q("13 mm")))
pad3 = body.newObject("PartDesign::Pad", "Pad002")
pad3.Profile = sketch3
pad3.Length = 1

# Sketch on XY plane
sketch4 = body.newObject("Sketcher::SketchObject", "Sketch003")
sketch4.AttachmentSupport = (doc.getObject("XY_Plane"), [""])
sketch4.MapMode = "FlatFace"
sketch4.addGeometry(Part.Circle(Vector(0, 0, 0), Vector(0, 0, 1), 2.5), False)
sketch4.addConstraint(Sketcher.Constraint("Coincident", 0, 3, -1, 1))
sketch4.addConstraint(Sketcher.Constraint("Diameter", 0, Q("5 mm")))
pocket1 = body.newObject("PartDesign::Pocket", "Pocket")
pocket1.Profile = sketch4
pocket1.Type = "ThroughAll"
pocket1.Reversed = True

doc.recompute()
